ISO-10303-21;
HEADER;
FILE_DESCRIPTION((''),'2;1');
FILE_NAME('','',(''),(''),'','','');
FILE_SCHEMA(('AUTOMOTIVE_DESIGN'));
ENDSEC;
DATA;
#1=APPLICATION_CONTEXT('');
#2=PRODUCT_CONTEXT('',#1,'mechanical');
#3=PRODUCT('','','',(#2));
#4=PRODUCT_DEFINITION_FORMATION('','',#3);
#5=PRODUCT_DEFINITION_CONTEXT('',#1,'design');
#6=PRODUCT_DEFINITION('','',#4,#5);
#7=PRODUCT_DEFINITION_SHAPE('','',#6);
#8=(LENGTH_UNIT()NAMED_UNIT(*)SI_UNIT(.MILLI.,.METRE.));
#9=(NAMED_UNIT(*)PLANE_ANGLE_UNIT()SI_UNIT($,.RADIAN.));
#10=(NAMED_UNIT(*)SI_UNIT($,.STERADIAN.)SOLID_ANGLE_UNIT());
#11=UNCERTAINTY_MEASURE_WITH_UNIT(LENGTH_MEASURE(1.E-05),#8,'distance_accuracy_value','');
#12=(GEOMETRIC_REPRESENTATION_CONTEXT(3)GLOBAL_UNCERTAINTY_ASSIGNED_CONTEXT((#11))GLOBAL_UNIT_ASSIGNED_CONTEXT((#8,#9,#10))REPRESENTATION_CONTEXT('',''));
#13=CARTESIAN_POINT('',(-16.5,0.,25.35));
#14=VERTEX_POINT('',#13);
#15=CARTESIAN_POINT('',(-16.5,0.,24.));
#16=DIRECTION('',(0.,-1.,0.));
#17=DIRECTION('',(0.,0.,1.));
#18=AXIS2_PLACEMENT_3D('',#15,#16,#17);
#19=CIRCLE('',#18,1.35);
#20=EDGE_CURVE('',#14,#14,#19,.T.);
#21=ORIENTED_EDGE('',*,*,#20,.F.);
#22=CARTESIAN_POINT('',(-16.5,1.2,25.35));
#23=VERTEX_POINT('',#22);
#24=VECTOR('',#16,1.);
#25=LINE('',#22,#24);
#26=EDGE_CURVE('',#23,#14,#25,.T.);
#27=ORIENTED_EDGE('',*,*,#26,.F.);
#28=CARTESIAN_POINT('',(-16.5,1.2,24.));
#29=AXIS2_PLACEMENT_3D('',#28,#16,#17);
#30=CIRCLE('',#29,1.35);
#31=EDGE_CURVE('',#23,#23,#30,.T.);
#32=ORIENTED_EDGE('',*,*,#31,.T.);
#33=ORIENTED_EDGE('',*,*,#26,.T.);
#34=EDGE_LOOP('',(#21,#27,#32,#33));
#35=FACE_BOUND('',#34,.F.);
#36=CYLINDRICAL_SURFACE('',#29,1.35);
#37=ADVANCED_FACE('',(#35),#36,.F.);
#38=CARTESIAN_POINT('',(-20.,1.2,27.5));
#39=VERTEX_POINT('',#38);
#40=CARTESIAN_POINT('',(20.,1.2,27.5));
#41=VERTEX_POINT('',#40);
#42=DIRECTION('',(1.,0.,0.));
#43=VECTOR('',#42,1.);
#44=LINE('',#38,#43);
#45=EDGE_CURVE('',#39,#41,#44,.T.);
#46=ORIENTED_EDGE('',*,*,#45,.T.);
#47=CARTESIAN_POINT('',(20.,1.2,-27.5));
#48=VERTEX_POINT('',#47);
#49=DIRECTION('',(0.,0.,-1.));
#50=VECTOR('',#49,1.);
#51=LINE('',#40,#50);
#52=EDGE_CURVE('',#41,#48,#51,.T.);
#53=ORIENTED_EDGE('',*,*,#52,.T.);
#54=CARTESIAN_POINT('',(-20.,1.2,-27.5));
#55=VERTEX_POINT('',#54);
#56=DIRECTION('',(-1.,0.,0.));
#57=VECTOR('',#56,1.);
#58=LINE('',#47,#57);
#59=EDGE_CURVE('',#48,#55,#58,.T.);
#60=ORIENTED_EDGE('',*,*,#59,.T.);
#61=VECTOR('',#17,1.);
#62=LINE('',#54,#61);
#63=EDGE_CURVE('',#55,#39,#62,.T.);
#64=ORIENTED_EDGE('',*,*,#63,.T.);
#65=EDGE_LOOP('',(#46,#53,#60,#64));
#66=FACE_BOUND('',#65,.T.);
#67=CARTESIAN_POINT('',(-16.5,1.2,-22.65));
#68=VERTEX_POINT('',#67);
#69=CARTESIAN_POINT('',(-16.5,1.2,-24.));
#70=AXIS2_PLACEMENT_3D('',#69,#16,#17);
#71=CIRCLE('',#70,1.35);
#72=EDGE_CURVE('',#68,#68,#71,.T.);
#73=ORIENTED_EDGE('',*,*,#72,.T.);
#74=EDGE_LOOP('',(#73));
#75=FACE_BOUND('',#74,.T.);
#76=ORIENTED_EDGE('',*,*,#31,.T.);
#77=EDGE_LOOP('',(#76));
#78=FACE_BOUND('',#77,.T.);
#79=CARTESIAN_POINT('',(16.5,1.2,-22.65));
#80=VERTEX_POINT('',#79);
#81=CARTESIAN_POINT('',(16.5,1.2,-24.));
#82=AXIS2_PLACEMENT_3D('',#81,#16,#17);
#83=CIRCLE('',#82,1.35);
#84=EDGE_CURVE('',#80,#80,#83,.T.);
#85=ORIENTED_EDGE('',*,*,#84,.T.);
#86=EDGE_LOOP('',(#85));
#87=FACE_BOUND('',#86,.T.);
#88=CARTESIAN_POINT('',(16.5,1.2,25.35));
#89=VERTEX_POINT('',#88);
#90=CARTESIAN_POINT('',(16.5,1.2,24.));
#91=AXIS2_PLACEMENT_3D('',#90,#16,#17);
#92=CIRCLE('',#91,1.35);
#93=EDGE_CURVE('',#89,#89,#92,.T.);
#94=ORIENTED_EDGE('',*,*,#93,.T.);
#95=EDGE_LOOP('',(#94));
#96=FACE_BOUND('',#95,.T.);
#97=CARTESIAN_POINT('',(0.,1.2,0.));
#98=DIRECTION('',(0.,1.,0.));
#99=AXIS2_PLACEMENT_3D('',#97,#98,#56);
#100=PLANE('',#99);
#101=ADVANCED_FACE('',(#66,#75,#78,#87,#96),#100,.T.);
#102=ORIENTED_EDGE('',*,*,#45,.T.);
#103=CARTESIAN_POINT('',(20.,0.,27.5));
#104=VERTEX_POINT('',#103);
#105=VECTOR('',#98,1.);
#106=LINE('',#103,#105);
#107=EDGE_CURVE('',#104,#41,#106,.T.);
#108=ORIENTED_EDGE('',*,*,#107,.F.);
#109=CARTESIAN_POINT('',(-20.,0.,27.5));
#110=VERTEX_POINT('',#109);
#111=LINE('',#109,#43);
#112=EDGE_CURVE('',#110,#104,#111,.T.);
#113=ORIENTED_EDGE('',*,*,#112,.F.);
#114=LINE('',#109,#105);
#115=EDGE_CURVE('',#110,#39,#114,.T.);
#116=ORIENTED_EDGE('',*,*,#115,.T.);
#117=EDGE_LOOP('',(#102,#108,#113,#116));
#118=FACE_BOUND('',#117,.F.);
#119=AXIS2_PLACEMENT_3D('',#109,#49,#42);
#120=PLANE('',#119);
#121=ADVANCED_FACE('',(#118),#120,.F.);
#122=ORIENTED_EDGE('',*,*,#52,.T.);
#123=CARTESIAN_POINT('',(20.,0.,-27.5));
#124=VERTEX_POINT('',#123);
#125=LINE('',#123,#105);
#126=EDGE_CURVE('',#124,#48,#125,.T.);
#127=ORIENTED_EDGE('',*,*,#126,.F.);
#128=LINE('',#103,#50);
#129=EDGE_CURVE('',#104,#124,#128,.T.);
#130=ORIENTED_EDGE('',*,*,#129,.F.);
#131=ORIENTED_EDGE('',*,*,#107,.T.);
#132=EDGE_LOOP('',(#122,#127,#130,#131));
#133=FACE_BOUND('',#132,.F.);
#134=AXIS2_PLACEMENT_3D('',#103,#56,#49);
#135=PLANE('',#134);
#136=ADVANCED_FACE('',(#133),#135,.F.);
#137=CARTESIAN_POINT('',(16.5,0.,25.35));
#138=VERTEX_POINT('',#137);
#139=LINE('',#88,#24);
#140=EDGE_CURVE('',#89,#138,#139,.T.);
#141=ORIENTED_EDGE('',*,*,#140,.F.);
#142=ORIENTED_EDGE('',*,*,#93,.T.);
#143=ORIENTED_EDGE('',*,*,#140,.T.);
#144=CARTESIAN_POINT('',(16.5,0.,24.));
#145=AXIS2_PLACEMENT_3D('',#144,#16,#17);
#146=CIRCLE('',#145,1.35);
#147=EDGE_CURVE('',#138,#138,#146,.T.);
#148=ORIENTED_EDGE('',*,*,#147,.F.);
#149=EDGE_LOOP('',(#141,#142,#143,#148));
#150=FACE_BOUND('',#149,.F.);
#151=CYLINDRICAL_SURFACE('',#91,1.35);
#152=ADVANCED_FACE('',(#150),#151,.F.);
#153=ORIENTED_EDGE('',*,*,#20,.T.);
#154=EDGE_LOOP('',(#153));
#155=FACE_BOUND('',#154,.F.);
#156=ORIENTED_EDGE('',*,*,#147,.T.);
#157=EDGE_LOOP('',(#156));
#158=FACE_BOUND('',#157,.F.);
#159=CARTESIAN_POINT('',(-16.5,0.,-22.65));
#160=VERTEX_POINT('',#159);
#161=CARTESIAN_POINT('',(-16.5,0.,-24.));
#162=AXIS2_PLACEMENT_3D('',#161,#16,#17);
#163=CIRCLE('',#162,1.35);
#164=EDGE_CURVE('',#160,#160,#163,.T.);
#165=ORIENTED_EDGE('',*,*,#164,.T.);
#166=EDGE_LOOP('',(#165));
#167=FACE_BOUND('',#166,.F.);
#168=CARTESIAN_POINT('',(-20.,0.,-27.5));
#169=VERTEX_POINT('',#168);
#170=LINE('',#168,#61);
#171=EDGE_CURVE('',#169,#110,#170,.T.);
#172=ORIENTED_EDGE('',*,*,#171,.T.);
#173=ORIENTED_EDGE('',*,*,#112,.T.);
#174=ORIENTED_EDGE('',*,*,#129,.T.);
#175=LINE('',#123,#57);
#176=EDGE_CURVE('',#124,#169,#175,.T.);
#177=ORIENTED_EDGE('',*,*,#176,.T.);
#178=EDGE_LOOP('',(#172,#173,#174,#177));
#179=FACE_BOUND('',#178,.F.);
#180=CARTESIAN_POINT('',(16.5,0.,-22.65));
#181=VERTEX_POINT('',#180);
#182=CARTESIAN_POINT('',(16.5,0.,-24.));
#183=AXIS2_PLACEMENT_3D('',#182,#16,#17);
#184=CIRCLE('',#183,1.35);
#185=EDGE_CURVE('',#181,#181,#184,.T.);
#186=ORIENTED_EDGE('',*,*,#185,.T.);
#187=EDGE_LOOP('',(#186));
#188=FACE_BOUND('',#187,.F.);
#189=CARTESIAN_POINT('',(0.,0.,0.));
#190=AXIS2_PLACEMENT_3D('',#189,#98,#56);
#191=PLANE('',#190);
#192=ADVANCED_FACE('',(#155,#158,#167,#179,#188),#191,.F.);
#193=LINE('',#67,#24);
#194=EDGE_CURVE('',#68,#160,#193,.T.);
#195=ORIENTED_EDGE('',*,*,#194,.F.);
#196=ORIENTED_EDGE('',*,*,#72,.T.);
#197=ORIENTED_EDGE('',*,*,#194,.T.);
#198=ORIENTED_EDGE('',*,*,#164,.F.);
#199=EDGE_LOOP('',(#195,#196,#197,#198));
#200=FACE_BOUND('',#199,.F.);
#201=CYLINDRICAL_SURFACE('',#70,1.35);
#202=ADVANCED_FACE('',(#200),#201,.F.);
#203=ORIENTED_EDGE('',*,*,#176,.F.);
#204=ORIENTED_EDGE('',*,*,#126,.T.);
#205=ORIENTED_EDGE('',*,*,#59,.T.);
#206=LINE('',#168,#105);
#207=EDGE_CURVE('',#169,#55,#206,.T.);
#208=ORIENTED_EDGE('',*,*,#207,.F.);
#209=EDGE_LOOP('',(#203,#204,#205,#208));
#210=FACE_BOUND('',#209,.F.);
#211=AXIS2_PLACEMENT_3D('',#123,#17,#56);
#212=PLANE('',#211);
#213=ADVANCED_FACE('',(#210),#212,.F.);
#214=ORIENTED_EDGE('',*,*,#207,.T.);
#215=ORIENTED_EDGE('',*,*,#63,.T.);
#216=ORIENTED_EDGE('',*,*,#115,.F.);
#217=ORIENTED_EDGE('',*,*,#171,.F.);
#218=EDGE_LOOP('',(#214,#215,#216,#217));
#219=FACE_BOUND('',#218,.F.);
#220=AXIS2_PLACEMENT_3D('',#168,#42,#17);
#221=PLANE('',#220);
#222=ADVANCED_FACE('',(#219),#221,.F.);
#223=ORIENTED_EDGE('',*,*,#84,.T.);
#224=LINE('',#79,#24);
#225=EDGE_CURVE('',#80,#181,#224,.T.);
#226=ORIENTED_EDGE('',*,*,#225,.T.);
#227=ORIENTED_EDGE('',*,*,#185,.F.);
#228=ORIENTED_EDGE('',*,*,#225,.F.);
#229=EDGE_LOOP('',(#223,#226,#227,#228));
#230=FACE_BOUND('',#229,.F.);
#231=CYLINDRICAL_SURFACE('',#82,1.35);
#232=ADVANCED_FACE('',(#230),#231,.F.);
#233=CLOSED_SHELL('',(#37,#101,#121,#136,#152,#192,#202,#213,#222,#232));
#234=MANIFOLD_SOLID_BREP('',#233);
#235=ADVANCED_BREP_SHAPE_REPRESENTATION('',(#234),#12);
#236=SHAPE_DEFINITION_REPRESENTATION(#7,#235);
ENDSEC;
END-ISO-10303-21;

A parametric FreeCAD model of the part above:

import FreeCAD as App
import Part
import Sketcher

V = App.Vector


def add_polygon(sketch, points):
    """Adds a closed chain of lines whose ends are joined by coincident constraints."""
    first, n = sketch.GeometryCount, len(points)
    for a, b in zip(points, points[1:] + points[:1]):
        sketch.addGeometry(Part.LineSegment(App.Vector(*a, 0), App.Vector(*b, 0)), False)
    for i in range(n):
        sketch.addConstraint(Sketcher.Constraint("Coincident", first + i, 2, first + (i + 1) % n, 1))

doc = App.newDocument("Part")
body = doc.addObject("PartDesign::Body", "Body")

# Sketch on XZ plane
sketch1 = body.newObject("Sketcher::SketchObject", "Sketch")
sketch1.AttachmentSupport = (doc.getObject("XZ_Plane"), [""])
sketch1.MapMode = "FlatFace"
add_polygon(sketch1, [(-20, -27.5), (-20, 27.5), (20, 27.5), (20, -27.5)])  # lines 0-3
sketch1.addConstraint(Sketcher.Constraint("Vertical", 0))
sketch1.addConstraint(Sketcher.Constraint("Horizontal", 1))
sketch1.addConstraint(Sketcher.Constraint("Vertical", 2))
sketch1.addConstraint(Sketcher.Constraint("Horizontal", 3))
sketch1.addConstraint(Sketcher.Constraint("Symmetric", 0, 2, 2, 2, -1, 1))
sketch1.addConstraint(Sketcher.Constraint("DistanceX", 1, 1, 1, 2, 40.0))
sketch1.addConstraint(Sketcher.Constraint("DistanceY", 0, 1, 0, 2, 55.0))
pad1 = body.newObject("PartDesign::Pad", "Pad")
pad1.Profile = sketch1
pad1.Length = 1.2
pad1.Reversed = True

# Sketch on XZ plane
sketch2 = body.newObject("Sketcher::SketchObject", "Sketch001")
sketch2.AttachmentSupport = (doc.getObject("XZ_Plane"), [""])
sketch2.MapMode = "FlatFace"
sketch2.AttachmentOffset = App.Placement(V(0, 0, -1.2), App.Rotation())
sketch2.addGeometry(Part.Circle(V(-16.5, 24, 0), V(0, 0, 1), 1.35), False)
sketch2.addGeometry(Part.Circle(V(-16.5, -24, 0), V(0, 0, 1), 1.35), False)
sketch2.addGeometry(Part.Circle(V(16.5, 24, 0), V(0, 0, 1), 1.35), False)
sketch2.addGeometry(Part.Circle(V(16.5, -24, 0), V(0, 0, 1), 1.35), False)
sketch2.addConstraint(Sketcher.Constraint("Equal", 0, 1))
sketch2.addConstraint(Sketcher.Constraint("Equal", 1, 2))
sketch2.addConstraint(Sketcher.Constraint("Equal", 2, 3))
sketch2.addConstraint(Sketcher.Constraint("Symmetric", 1, 3, 2, 3, -1, 1))
sketch2.addConstraint(Sketcher.Constraint("Symmetric", 0, 3, 3, 3, -1, 1))
sketch2.addConstraint(Sketcher.Constraint("Symmetric", 0, 3, 2, 3, -2))
sketch2.addConstraint(Sketcher.Constraint("Diameter", 0, 2.7))
sketch2.addConstraint(Sketcher.Constraint("DistanceY", -1, 1, 0, 3, 24.0))
sketch2.addConstraint(Sketcher.Constraint("DistanceX", 0, 3, 2, 3, 33.0))
doc.recompute()
hole = body.newObject("PartDesign::Hole", "Hole")
hole.Profile = sketch2
hole.ThreadType = "None"
hole.Diameter = 2.7
hole.DepthType = "ThroughAll"
hole.Reversed = True

doc.recompute()
